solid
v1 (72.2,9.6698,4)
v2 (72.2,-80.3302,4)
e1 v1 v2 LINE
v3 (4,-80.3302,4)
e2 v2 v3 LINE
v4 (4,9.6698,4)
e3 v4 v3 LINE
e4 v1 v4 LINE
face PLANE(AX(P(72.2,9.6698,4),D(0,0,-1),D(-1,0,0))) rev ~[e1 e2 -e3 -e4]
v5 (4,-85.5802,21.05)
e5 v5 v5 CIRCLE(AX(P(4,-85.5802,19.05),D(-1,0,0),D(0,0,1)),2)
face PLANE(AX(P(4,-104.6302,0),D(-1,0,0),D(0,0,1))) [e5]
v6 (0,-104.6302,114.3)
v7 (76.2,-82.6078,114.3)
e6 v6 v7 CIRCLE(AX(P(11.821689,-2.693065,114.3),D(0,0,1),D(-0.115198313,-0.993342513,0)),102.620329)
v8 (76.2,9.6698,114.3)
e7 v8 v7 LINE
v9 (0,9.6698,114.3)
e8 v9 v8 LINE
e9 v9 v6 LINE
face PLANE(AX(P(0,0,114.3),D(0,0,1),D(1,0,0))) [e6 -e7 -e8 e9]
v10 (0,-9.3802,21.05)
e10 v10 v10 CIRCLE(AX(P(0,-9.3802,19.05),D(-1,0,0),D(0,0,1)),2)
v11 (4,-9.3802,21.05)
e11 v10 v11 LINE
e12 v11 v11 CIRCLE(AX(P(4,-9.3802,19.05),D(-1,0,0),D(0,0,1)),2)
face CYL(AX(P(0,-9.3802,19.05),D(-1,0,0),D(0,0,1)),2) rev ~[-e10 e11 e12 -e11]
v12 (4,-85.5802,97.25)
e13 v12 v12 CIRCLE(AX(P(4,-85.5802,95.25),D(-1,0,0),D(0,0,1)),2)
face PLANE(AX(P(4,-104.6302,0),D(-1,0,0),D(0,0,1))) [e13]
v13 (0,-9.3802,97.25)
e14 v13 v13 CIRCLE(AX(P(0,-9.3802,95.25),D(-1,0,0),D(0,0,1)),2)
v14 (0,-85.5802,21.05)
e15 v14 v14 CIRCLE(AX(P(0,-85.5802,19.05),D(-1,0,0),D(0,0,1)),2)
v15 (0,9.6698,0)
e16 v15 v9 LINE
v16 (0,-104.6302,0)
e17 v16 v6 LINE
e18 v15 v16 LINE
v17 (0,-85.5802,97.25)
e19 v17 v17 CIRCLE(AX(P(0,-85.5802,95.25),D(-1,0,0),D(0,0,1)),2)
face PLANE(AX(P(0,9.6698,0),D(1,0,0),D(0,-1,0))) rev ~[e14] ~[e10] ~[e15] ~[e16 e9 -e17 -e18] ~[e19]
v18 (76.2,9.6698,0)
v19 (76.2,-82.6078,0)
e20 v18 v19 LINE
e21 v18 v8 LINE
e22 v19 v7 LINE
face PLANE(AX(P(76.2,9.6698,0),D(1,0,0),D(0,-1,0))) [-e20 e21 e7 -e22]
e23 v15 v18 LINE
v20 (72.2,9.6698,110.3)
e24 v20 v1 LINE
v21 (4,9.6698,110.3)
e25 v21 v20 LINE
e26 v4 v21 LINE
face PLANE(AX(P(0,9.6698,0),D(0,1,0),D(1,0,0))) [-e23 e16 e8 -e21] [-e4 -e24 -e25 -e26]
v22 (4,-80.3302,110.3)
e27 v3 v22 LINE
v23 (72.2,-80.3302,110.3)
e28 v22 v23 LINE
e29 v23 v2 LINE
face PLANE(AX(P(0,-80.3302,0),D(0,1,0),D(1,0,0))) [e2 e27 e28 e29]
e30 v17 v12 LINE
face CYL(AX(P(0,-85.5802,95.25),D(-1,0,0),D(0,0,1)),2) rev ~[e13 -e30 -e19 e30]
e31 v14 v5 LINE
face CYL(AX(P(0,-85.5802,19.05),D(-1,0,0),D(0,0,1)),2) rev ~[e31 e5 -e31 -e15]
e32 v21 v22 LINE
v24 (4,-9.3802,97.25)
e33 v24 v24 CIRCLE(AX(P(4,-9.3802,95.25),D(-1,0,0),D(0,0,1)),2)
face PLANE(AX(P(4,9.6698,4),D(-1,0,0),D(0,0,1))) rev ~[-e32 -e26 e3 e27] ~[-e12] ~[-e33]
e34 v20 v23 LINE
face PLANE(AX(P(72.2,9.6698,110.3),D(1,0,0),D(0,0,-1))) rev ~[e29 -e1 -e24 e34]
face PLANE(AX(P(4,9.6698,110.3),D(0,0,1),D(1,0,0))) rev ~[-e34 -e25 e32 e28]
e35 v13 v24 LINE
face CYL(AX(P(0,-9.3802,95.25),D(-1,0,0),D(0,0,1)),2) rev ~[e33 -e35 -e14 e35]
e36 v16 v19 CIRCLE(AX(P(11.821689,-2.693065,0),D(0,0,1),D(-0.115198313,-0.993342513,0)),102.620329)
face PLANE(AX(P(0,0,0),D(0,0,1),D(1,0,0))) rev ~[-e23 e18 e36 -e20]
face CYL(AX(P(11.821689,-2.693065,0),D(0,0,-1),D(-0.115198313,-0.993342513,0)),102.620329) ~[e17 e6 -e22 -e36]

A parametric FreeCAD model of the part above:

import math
import FreeCAD as App
import Part
import Sketcher

doc = App.newDocument("Part")
body = doc.addObject("PartDesign::Body", "Body")

# Sketch on XY plane
sketch1 = body.newObject("Sketcher::SketchObject", "Sketch")
sketch1.AttachmentSupport = (doc.getObject("XY_Plane"), [""])
sketch1.MapMode = "FlatFace"
sketch1.addGeometry([
    Part.LineSegment(App.Vector(76.2, 9.6698, 0), App.Vector(0, 9.6698, 0)),
    Part.LineSegment(App.Vector(0, 9.6698, 0), App.Vector(0, -104.6302, 0)),
    Part.ArcOfCircle(Part.Circle(App.Vector(11.8217, -2.6932, 0), App.Vector(0, 0, 1), 102.620196), math.radians(-96.615079), math.radians(-51.145473)),
    Part.LineSegment(App.Vector(76.2, -82.6078, 0), App.Vector(76.2, 9.6698, 0)),
], False)
sketch1.addConstraint([
    Sketcher.Constraint("Coincident", 0, 2, 1, 1),
    Sketcher.Constraint("Coincident", 1, 2, 2, 1),
    Sketcher.Constraint("Coincident", 2, 2, 3, 1),
    Sketcher.Constraint("Coincident", 3, 2, 0, 1),
    Sketcher.Constraint("Horizontal", 0),
    Sketcher.Constraint("Vertical", 1),
    Sketcher.Constraint("Vertical", 3),
    Sketcher.Constraint("PointOnObject", 0, 2, -2),
    Sketcher.Constraint("DistanceX", 0, 2, 0, 1, 76.2),
    Sketcher.Constraint("DistanceY", 1, 2, 1, 1, 114.3),
    Sketcher.Constraint("Radius", 2, 102.6202),
    Sketcher.Constraint("DistanceY", 3, 1, 3, 2, 92.2776),
    Sketcher.Constraint("DistanceY", 2, 3, -1, 1, 2.6932),
])
pad1 = body.newObject("PartDesign::Pad", "Pad")
pad1.Profile = sketch1
pad1.Length = 114.3

# Sketch on XZ plane
sketch2 = body.newObject("Sketcher::SketchObject", "Sketch001")
sketch2.AttachmentSupport = (doc.getObject("XZ_Plane"), [""])
sketch2.MapMode = "FlatFace"
sketch2.AttachmentOffset = App.Placement(App.Vector(0, 0, -9.6698), App.Rotation())
sketch2.addGeometry([
    Part.LineSegment(App.Vector(72.2, 110.3, 0), App.Vector(72.2, 4, 0)),
    Part.LineSegment(App.Vector(72.2, 4, 0), App.Vector(4, 4, 0)),
    Part.LineSegment(App.Vector(4, 4, 0), App.Vector(4, 110.3, 0)),
    Part.LineSegment(App.Vector(4, 110.3, 0), App.Vector(72.2, 110.3, 0)),
], False)
sketch2.addConstraint([
    Sketcher.Constraint("Coincident", 0, 2, 1, 1),
    Sketcher.Constraint("Coincident", 1, 2, 2, 1),
    Sketcher.Constraint("Coincident", 2, 2, 3, 1),
    Sketcher.Constraint("Coincident", 3, 2, 0, 1),
    Sketcher.Constraint("Vertical", 0),
    Sketcher.Constraint("Horizontal", 1),
    Sketcher.Constraint("Vertical", 2),
    Sketcher.Constraint("Horizontal", 3),
    Sketcher.Constraint("DistanceY", -1, 1, 0, 2, 4.0),
    Sketcher.Constraint("DistanceX", -1, 1, 1, 2, 4.0),
    Sketcher.Constraint("DistanceX", 1, 2, 1, 1, 68.2),
    Sketcher.Constraint("DistanceY", 0, 2, 0, 1, 106.3),
])
pocket1 = body.newObject("PartDesign::Pocket", "Pocket")
pocket1.Profile = sketch2
pocket1.Length = 90
pocket1.Reversed = True

# Sketch on YZ plane
sketch3 = body.newObject("Sketcher::SketchObject", "Sketch002")
sketch3.AttachmentSupport = (doc.getObject("YZ_Plane"), [""])
sketch3.MapMode = "FlatFace"
sketch3.addGeometry([
    Part.Circle(App.Vector(-9.3802, 19.05, 0), App.Vector(0, 0, 1), 2),
    Part.Circle(App.Vector(-9.3802, 95.25, 0), App.Vector(0, 0, 1), 2),
    Part.Circle(App.Vector(-85.5802, 19.05, 0), App.Vector(0, 0, 1), 2),
    Part.Circle(App.Vector(-85.5802, 95.25, 0), App.Vector(0, 0, 1), 2),
], False)
sketch3.addConstraint([
    Sketcher.Constraint("Equal", 0, 1),
    Sketcher.Constraint("Equal", 1, 2),
    Sketcher.Constraint("Equal", 2, 3),
    Sketcher.Constraint("Horizontal", 0, 3, 2, 3),
    Sketcher.Constraint("Horizontal", 1, 3, 3, 3),
    Sketcher.Constraint("Vertical", 0, 3, 1, 3),
    Sketcher.Constraint("Vertical", 2, 3, 3, 3),
    Sketcher.Constraint("Diameter", 0, 4.0),
    Sketcher.Constraint("DistanceY", -1, 1, 0, 3, 19.05),
    Sketcher.Constraint("DistanceY", 0, 3, 1, 3, 76.2),
    Sketcher.Constraint("DistanceX", 2, 3, 0, 3, 76.2),
    Sketcher.Constraint("DistanceX", 0, 3, -1, 1, 9.3802),
])
pocket2 = body.newObject("PartDesign::Pocket", "Pocket001")
pocket2.Profile = sketch3
pocket2.Length = 4
pocket2.Reversed = True

doc.recompute()
